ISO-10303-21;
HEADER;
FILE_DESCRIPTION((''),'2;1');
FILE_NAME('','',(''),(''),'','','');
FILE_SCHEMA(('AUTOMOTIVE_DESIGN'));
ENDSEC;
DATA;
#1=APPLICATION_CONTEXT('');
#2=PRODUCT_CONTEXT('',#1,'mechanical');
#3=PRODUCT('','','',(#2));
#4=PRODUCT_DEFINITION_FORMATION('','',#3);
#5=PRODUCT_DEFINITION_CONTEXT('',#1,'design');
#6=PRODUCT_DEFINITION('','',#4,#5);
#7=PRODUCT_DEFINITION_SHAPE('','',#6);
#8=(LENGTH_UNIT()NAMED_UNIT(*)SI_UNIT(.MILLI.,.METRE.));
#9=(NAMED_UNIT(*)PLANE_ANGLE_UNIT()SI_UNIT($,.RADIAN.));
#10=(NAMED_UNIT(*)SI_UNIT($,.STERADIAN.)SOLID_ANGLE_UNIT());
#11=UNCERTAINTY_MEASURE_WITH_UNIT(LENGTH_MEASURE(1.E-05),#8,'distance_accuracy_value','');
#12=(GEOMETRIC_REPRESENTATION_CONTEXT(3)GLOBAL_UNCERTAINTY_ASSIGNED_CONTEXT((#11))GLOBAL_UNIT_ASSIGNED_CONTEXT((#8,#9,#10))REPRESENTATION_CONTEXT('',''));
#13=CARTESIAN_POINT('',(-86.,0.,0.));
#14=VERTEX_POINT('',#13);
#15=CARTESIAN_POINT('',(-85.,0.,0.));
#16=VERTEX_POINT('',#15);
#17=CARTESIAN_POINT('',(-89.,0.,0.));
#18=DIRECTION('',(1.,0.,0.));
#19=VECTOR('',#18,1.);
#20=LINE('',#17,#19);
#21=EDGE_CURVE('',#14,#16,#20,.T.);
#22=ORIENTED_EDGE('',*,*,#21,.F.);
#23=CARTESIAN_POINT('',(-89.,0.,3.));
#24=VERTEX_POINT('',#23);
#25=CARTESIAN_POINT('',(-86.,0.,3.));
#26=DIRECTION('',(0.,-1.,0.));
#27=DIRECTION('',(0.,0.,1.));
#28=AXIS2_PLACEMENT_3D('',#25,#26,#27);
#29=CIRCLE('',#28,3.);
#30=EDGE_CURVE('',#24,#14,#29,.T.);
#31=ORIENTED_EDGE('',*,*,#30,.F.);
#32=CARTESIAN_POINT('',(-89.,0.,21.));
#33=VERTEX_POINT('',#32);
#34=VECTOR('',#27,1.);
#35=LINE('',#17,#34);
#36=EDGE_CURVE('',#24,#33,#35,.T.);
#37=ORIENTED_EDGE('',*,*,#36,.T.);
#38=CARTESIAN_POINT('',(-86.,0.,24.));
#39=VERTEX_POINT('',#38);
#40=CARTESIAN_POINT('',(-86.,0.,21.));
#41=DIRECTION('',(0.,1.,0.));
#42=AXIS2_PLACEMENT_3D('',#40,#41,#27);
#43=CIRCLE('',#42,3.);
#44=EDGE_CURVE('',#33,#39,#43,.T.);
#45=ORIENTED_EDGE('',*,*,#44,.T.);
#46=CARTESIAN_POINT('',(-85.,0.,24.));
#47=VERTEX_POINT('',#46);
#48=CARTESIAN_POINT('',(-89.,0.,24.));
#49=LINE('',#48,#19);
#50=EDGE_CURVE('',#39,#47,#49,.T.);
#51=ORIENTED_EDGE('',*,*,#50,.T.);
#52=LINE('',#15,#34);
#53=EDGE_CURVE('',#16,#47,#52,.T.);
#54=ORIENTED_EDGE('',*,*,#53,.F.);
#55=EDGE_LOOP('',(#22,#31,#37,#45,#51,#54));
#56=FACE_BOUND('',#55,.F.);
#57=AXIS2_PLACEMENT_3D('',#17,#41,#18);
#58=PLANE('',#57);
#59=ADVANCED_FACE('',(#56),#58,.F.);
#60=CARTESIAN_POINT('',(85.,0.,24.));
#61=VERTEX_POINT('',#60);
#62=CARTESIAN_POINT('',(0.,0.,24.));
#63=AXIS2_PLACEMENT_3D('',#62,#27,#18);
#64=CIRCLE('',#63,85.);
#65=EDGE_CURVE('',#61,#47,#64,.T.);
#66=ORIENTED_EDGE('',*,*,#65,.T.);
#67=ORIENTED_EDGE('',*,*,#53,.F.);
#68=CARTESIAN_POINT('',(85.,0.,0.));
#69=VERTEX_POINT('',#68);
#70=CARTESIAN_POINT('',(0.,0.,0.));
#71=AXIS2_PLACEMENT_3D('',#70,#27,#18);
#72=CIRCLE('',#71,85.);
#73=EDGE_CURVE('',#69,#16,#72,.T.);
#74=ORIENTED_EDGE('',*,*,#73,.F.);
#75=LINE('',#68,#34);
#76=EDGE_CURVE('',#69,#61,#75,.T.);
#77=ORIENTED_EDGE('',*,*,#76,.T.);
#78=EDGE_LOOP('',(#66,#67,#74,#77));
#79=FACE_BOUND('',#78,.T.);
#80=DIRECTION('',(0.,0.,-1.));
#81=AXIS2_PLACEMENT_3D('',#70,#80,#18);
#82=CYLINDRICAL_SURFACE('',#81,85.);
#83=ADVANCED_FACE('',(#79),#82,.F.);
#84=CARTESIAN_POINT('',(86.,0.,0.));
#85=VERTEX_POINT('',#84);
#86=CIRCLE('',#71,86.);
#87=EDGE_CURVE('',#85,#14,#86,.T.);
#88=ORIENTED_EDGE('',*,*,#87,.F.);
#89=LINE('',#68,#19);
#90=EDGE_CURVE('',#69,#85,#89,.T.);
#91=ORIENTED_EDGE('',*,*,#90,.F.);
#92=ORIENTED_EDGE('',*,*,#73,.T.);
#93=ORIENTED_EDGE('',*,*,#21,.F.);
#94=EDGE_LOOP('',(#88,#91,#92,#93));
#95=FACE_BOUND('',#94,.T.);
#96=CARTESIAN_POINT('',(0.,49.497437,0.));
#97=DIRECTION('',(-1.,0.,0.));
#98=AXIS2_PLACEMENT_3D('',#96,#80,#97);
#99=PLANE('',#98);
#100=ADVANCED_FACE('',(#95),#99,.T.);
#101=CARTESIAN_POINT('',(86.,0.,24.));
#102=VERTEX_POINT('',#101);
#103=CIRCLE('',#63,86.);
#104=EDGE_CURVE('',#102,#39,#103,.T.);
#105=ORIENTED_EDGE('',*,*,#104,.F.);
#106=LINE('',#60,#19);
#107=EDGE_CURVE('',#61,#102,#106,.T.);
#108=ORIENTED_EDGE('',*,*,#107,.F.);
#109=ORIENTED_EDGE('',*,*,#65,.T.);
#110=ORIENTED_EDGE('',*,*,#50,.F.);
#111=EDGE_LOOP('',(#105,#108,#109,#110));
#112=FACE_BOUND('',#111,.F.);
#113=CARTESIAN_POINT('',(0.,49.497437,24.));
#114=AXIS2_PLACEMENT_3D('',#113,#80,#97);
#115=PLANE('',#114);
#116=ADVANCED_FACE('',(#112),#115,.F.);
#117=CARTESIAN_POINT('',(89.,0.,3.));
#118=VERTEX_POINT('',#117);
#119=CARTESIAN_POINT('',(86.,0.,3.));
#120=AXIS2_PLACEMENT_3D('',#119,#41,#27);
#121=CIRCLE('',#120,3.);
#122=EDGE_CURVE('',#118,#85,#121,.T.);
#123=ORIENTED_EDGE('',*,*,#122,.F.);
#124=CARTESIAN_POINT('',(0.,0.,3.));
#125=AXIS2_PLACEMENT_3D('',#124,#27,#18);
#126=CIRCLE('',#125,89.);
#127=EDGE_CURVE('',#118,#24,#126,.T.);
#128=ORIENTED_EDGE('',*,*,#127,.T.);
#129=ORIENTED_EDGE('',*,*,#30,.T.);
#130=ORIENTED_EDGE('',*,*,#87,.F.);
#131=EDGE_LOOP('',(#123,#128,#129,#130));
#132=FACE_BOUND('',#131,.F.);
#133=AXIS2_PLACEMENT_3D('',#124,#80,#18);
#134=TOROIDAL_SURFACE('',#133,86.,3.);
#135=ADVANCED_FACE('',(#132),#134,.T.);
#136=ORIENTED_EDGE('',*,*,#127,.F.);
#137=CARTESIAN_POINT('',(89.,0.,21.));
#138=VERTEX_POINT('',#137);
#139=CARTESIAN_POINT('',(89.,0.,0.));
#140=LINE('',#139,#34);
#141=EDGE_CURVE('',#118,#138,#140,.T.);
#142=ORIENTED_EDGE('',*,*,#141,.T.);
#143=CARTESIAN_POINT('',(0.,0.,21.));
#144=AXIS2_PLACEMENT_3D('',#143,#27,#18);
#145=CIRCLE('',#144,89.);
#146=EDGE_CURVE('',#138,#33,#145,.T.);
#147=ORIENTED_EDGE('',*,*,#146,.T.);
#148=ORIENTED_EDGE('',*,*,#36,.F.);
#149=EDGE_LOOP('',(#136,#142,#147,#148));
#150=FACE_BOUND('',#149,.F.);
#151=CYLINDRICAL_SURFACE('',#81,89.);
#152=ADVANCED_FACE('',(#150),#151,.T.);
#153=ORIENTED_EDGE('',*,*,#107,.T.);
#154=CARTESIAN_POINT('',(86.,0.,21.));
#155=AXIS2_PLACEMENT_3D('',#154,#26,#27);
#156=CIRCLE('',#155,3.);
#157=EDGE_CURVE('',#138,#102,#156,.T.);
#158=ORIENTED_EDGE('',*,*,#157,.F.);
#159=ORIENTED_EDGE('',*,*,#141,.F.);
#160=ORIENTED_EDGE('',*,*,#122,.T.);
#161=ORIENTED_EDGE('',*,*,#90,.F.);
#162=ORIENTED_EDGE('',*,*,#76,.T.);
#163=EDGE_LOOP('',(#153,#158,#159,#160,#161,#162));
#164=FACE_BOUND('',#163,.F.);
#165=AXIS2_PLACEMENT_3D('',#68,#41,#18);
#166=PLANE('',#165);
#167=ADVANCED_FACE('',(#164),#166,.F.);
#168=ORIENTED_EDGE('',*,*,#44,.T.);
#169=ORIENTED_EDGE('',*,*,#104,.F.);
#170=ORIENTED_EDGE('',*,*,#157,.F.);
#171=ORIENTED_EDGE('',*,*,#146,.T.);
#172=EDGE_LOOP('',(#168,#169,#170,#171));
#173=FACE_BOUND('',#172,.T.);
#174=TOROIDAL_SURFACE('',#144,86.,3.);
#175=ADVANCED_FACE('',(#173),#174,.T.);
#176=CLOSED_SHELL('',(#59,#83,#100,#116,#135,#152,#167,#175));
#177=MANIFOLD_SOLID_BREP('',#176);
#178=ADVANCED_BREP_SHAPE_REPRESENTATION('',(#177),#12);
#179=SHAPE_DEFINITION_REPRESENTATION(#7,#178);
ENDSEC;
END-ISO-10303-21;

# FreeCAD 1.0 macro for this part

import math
import FreeCAD as App
import Part
import Sketcher


def edges_at(feature, points):
    """Names of the edges that pass closest to the given points."""
    edges = feature.Shape.Edges
    near = lambda p: min(range(len(edges)), key=lambda i: edges[i].distToShape(Part.Vertex(*p))[0])
    return sorted({f"Edge{near(p) + 1}" for p in points})

doc = App.newDocument("Part")
body = doc.addObject("PartDesign::Body", "Body")

sketch1 = body.newObject("Sketcher::SketchObject", "Sketch")
sketch1.AttachmentSupport = (doc.getObject("XY_Plane"), [""])
sketch1.MapMode = "FlatFace"
sketch1.addGeometry(Part.ArcOfCircle(Part.Circle(App.Vector(0, 0, 0), App.Vector(0, 0, 1), 85), math.radians(0), math.radians(180)), False)
sketch1.addGeometry(Part.LineSegment(App.Vector(85, 0, 0), App.Vector(89, 0, 0)), False)
sketch1.addGeometry(Part.ArcOfCircle(Part.Circle(App.Vector(0, 0, 0), App.Vector(0, 0, 1), 89), math.radians(0), math.radians(180)), False)
sketch1.addGeometry(Part.LineSegment(App.Vector(-89, 0, 0), App.Vector(-85, 0, 0)), False)
sketch1.addConstraint(Sketcher.Constraint("Coincident", 0, 1, 1, 1))
sketch1.addConstraint(Sketcher.Constraint("Coincident", 1, 2, 2, 1))
sketch1.addConstraint(Sketcher.Constraint("Coincident", 2, 2, 3, 1))
sketch1.addConstraint(Sketcher.Constraint("Coincident", 3, 2, 0, 2))
sketch1.addConstraint(Sketcher.Constraint("Horizontal", 1))
sketch1.addConstraint(Sketcher.Constraint("Horizontal", 3))
sketch1.addConstraint(Sketcher.Constraint("Coincident", 0, 3, -1, 1))
sketch1.addConstraint(Sketcher.Constraint("Coincident", 2, 3, -1, 1))
sketch1.addConstraint(Sketcher.Constraint("PointOnObject", 0, 1, -1))
sketch1.addConstraint(Sketcher.Constraint("PointOnObject", 2, 2, -1))
sketch1.addConstraint(Sketcher.Constraint("Radius", 0, 85.0))
sketch1.addConstraint(Sketcher.Constraint("Radius", 2, 89.0))
pad1 = body.newObject("PartDesign::Pad", "Pad")
pad1.Profile = sketch1
pad1.Length = 24
doc.recompute()

fillet = body.newObject("PartDesign::Fillet", "Fillet")
fillet.Base = (pad1, edges_at(pad1, [(0, 89, 24), (0, 89, 0)]))
fillet.Radius = 3

doc.recompute()
